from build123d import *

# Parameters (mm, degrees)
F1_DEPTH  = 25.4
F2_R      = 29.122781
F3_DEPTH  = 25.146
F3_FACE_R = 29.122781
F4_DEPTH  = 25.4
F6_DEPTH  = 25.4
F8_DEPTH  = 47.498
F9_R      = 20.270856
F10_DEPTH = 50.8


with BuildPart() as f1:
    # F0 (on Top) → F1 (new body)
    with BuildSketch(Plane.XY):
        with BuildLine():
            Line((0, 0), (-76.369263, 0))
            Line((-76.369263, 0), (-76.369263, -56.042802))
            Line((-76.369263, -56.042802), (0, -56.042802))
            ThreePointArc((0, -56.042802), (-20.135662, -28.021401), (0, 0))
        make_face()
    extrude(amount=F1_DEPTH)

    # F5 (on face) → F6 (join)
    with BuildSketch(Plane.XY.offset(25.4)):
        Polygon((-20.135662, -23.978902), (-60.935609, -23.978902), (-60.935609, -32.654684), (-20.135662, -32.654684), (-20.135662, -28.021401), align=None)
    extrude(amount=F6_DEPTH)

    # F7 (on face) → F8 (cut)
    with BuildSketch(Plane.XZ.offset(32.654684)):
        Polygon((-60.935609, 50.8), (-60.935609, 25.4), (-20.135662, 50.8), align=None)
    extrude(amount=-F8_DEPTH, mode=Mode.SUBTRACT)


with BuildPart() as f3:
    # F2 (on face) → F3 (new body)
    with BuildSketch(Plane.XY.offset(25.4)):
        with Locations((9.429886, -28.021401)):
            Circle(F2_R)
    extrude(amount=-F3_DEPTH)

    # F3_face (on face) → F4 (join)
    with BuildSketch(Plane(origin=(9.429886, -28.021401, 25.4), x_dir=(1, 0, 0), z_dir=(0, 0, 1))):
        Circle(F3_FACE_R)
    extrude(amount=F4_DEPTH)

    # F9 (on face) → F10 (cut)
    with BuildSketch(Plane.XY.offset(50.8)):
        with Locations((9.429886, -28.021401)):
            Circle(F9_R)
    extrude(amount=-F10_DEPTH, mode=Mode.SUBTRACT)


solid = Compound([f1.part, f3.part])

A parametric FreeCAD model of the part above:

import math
import FreeCAD as App
import Part
import Sketcher
Q = App.Units.Quantity


def add_polygon(sketch, points):
    """Adds a closed chain of lines whose ends are joined by coincident constraints."""
    first, n = sketch.GeometryCount, len(points)
    for a, b in zip(points, points[1:] + points[:1]):
        sketch.addGeometry(Part.LineSegment(App.Vector(*a, 0), App.Vector(*b, 0)), False)
    for i in range(n):
        sketch.addConstraint(Sketcher.Constraint("Coincident", first + i, 2, first + (i + 1) % n, 1))

doc = App.newDocument("Part")
body = doc.addObject("PartDesign::Body", "Body")

sketch1 = body.newObject("Sketcher::SketchObject", "Sketch")
sketch1.AttachmentSupport = (doc.getObject("XY_Plane"), [""])
sketch1.MapMode = "FlatFace"
sketch1.addGeometry([
    Part.LineSegment(App.Vector(0, 0, 0), App.Vector(-76, 0, 0)),
    Part.LineSegment(App.Vector(-76, 0, 0), App.Vector(-76, -56, 0)),
    Part.LineSegment(App.Vector(-76, -56, 0), App.Vector(0, -56, 0)),
    Part.ArcOfCircle(Part.Circle(App.Vector(9, -28, 0), App.Vector(0, 0, 1), 30), math.radians(109), math.radians(251)),
], False)
sketch1.addConstraint([
    Sketcher.Constraint("Coincident", 0, 2, 1, 1),
    Sketcher.Constraint("Coincident", 1, 2, 2, 1),
    Sketcher.Constraint("Coincident", 2, 2, 3, 2),
    Sketcher.Constraint("Coincident", 3, 1, 0, 1),
    Sketcher.Constraint("Horizontal", 0),
    Sketcher.Constraint("Vertical", 1),
    Sketcher.Constraint("Horizontal", 2),
    Sketcher.Constraint("Coincident", 3, 1, -1, 1),
    Sketcher.Constraint("PointOnObject", 2, 2, -2),
    Sketcher.Constraint("Radius", 3, Q("29.565549 mm")),
    Sketcher.Constraint("DistanceY", 3, 3, -1, 1, Q("28.021401 mm")),
    Sketcher.Constraint("DistanceX", 0, 2, 0, 1, Q("76.369263 mm")),
])
pad1 = body.newObject("PartDesign::Pad", "Pad")
pad1.Profile = sketch1
pad1.Length = Q("1 in")

sketch2 = body.newObject("Sketcher::SketchObject", "Sketch001")
sketch2.AttachmentSupport = (doc.getObject("XY_Plane"), [""])
sketch2.MapMode = "FlatFace"
sketch2.AttachmentOffset = App.Placement(App.Vector(0, 0, 1 * 25.4), App.Rotation())
add_polygon(sketch2, [(-20, -24), (-61, -24), (-61, -33), (-20, -33)])
sketch2.addConstraint([
    Sketcher.Constraint("Horizontal", 0),
    Sketcher.Constraint("Vertical", 1),
    Sketcher.Constraint("Horizontal", 2),
    Sketcher.Constraint("Vertical", 3),
    Sketcher.Constraint("DistanceX", 0, 2, 0, 1, Q("40.799947 mm")),
    Sketcher.Constraint("DistanceY", 1, 2, 1, 1, Q("8.675782 mm")),
    Sketcher.Constraint("DistanceX", 0, 2, -1, 1, Q("60.935609 mm")),
    Sketcher.Constraint("DistanceY", 0, 2, -1, 1, Q("23.978902 mm")),
])
pad2 = body.newObject("PartDesign::Pad", "Pad001")
pad2.Profile = sketch2
pad2.Length = Q("1 in")

sketch3 = body.newObject("Sketcher::SketchObject", "Sketch002")
sketch3.AttachmentSupport = (doc.getObject("XZ_Plane"), [""])
sketch3.MapMode = "FlatFace"
sketch3.AttachmentOffset = App.Placement(App.Vector(0, 0, 32.654684), App.Rotation())
add_polygon(sketch3, [(-61, 51), (-61, 25), (-20, 51)])
sketch3.addConstraint([
    Sketcher.Constraint("Vertical", 0),
    Sketcher.Constraint("Horizontal", 2),
    Sketcher.Constraint("DistanceY", 0, 2, 0, 1, Q("1 in")),
    Sketcher.Constraint("DistanceY", -1, 1, 0, 2, Q("1 in")),
    Sketcher.Constraint("DistanceX", 2, 2, 2, 1, Q("40.799947 mm")),
    Sketcher.Constraint("DistanceX", 0, 2, -1, 1, Q("60.935609 mm")),
])
pocket1 = body.newObject("PartDesign::Pocket", "Pocket")
pocket1.Profile = sketch3
pocket1.Length = Q("1.87 in")
body2 = doc.addObject("PartDesign::Body", "Body001")

sketch4 = body2.newObject("Sketcher::SketchObject", "Sketch003")
sketch4.AttachmentSupport = (doc.getObject("XY_Plane001"), [""])
sketch4.MapMode = "FlatFace"
sketch4.AttachmentOffset = App.Placement(App.Vector(0, 0, 1 * 25.4), App.Rotation())
sketch4.addGeometry(Part.Circle(App.Vector(9, -28, 0), App.Vector(0, 0, 1), 29), False)
sketch4.addConstraint([
    Sketcher.Constraint("Diameter", 0, Q("58.245562 mm")),
    Sketcher.Constraint("DistanceY", 0, 3, -1, 1, Q("28.021401 mm")),
    Sketcher.Constraint("DistanceX", -1, 1, 0, 3, Q("9.429886 mm")),
])
pad3 = body2.newObject("PartDesign::Pad", "Pad002")
pad3.Profile = sketch4
pad3.Length = Q("0.99 in")
pad3.Reversed = True

sketch5 = body2.newObject("Sketcher::SketchObject", "Sketch004")
sketch5.AttachmentSupport = (doc.getObject("XY_Plane001"), [""])
sketch5.MapMode = "FlatFace"
sketch5.AttachmentOffset = App.Placement(App.Vector(0, 0, 1 * 25.4), App.Rotation())
sketch5.addGeometry(Part.Circle(App.Vector(9, -28, 0), App.Vector(0, 0, 1), 29), False)
sketch5.addConstraint([
    Sketcher.Constraint("Diameter", 0, Q("58.245562 mm")),
    Sketcher.Constraint("DistanceY", 0, 3, -1, 1, Q("28.021401 mm")),
    Sketcher.Constraint("DistanceX", -1, 1, 0, 3, Q("9.429886 mm")),
])
pad4 = body2.newObject("PartDesign::Pad", "Pad003")
pad4.Profile = sketch5
pad4.Length = Q("1 in")

sketch6 = body2.newObject("Sketcher::SketchObject", "Sketch005")
sketch6.AttachmentSupport = (doc.getObject("XY_Plane001"), [""])
sketch6.MapMode = "FlatFace"
sketch6.AttachmentOffset = App.Placement(App.Vector(0, 0, 2 * 25.4), App.Rotation())
sketch6.addGeometry(Part.Circle(App.Vector(9, -28, 0), App.Vector(0, 0, 1), 20), False)
sketch6.addConstraint([
    Sketcher.Constraint("Diameter", 0, Q("40.541712 mm")),
    Sketcher.Constraint("DistanceY", 0, 3, -1, 1, Q("28.021401 mm")),
    Sketcher.Constraint("DistanceX", -1, 1, 0, 3, Q("9.429886 mm")),
])
pocket2 = body2.newObject("PartDesign::Pocket", "Pocket001")
pocket2.Profile = sketch6
pocket2.Length = Q("2 in")

doc.recompute()
